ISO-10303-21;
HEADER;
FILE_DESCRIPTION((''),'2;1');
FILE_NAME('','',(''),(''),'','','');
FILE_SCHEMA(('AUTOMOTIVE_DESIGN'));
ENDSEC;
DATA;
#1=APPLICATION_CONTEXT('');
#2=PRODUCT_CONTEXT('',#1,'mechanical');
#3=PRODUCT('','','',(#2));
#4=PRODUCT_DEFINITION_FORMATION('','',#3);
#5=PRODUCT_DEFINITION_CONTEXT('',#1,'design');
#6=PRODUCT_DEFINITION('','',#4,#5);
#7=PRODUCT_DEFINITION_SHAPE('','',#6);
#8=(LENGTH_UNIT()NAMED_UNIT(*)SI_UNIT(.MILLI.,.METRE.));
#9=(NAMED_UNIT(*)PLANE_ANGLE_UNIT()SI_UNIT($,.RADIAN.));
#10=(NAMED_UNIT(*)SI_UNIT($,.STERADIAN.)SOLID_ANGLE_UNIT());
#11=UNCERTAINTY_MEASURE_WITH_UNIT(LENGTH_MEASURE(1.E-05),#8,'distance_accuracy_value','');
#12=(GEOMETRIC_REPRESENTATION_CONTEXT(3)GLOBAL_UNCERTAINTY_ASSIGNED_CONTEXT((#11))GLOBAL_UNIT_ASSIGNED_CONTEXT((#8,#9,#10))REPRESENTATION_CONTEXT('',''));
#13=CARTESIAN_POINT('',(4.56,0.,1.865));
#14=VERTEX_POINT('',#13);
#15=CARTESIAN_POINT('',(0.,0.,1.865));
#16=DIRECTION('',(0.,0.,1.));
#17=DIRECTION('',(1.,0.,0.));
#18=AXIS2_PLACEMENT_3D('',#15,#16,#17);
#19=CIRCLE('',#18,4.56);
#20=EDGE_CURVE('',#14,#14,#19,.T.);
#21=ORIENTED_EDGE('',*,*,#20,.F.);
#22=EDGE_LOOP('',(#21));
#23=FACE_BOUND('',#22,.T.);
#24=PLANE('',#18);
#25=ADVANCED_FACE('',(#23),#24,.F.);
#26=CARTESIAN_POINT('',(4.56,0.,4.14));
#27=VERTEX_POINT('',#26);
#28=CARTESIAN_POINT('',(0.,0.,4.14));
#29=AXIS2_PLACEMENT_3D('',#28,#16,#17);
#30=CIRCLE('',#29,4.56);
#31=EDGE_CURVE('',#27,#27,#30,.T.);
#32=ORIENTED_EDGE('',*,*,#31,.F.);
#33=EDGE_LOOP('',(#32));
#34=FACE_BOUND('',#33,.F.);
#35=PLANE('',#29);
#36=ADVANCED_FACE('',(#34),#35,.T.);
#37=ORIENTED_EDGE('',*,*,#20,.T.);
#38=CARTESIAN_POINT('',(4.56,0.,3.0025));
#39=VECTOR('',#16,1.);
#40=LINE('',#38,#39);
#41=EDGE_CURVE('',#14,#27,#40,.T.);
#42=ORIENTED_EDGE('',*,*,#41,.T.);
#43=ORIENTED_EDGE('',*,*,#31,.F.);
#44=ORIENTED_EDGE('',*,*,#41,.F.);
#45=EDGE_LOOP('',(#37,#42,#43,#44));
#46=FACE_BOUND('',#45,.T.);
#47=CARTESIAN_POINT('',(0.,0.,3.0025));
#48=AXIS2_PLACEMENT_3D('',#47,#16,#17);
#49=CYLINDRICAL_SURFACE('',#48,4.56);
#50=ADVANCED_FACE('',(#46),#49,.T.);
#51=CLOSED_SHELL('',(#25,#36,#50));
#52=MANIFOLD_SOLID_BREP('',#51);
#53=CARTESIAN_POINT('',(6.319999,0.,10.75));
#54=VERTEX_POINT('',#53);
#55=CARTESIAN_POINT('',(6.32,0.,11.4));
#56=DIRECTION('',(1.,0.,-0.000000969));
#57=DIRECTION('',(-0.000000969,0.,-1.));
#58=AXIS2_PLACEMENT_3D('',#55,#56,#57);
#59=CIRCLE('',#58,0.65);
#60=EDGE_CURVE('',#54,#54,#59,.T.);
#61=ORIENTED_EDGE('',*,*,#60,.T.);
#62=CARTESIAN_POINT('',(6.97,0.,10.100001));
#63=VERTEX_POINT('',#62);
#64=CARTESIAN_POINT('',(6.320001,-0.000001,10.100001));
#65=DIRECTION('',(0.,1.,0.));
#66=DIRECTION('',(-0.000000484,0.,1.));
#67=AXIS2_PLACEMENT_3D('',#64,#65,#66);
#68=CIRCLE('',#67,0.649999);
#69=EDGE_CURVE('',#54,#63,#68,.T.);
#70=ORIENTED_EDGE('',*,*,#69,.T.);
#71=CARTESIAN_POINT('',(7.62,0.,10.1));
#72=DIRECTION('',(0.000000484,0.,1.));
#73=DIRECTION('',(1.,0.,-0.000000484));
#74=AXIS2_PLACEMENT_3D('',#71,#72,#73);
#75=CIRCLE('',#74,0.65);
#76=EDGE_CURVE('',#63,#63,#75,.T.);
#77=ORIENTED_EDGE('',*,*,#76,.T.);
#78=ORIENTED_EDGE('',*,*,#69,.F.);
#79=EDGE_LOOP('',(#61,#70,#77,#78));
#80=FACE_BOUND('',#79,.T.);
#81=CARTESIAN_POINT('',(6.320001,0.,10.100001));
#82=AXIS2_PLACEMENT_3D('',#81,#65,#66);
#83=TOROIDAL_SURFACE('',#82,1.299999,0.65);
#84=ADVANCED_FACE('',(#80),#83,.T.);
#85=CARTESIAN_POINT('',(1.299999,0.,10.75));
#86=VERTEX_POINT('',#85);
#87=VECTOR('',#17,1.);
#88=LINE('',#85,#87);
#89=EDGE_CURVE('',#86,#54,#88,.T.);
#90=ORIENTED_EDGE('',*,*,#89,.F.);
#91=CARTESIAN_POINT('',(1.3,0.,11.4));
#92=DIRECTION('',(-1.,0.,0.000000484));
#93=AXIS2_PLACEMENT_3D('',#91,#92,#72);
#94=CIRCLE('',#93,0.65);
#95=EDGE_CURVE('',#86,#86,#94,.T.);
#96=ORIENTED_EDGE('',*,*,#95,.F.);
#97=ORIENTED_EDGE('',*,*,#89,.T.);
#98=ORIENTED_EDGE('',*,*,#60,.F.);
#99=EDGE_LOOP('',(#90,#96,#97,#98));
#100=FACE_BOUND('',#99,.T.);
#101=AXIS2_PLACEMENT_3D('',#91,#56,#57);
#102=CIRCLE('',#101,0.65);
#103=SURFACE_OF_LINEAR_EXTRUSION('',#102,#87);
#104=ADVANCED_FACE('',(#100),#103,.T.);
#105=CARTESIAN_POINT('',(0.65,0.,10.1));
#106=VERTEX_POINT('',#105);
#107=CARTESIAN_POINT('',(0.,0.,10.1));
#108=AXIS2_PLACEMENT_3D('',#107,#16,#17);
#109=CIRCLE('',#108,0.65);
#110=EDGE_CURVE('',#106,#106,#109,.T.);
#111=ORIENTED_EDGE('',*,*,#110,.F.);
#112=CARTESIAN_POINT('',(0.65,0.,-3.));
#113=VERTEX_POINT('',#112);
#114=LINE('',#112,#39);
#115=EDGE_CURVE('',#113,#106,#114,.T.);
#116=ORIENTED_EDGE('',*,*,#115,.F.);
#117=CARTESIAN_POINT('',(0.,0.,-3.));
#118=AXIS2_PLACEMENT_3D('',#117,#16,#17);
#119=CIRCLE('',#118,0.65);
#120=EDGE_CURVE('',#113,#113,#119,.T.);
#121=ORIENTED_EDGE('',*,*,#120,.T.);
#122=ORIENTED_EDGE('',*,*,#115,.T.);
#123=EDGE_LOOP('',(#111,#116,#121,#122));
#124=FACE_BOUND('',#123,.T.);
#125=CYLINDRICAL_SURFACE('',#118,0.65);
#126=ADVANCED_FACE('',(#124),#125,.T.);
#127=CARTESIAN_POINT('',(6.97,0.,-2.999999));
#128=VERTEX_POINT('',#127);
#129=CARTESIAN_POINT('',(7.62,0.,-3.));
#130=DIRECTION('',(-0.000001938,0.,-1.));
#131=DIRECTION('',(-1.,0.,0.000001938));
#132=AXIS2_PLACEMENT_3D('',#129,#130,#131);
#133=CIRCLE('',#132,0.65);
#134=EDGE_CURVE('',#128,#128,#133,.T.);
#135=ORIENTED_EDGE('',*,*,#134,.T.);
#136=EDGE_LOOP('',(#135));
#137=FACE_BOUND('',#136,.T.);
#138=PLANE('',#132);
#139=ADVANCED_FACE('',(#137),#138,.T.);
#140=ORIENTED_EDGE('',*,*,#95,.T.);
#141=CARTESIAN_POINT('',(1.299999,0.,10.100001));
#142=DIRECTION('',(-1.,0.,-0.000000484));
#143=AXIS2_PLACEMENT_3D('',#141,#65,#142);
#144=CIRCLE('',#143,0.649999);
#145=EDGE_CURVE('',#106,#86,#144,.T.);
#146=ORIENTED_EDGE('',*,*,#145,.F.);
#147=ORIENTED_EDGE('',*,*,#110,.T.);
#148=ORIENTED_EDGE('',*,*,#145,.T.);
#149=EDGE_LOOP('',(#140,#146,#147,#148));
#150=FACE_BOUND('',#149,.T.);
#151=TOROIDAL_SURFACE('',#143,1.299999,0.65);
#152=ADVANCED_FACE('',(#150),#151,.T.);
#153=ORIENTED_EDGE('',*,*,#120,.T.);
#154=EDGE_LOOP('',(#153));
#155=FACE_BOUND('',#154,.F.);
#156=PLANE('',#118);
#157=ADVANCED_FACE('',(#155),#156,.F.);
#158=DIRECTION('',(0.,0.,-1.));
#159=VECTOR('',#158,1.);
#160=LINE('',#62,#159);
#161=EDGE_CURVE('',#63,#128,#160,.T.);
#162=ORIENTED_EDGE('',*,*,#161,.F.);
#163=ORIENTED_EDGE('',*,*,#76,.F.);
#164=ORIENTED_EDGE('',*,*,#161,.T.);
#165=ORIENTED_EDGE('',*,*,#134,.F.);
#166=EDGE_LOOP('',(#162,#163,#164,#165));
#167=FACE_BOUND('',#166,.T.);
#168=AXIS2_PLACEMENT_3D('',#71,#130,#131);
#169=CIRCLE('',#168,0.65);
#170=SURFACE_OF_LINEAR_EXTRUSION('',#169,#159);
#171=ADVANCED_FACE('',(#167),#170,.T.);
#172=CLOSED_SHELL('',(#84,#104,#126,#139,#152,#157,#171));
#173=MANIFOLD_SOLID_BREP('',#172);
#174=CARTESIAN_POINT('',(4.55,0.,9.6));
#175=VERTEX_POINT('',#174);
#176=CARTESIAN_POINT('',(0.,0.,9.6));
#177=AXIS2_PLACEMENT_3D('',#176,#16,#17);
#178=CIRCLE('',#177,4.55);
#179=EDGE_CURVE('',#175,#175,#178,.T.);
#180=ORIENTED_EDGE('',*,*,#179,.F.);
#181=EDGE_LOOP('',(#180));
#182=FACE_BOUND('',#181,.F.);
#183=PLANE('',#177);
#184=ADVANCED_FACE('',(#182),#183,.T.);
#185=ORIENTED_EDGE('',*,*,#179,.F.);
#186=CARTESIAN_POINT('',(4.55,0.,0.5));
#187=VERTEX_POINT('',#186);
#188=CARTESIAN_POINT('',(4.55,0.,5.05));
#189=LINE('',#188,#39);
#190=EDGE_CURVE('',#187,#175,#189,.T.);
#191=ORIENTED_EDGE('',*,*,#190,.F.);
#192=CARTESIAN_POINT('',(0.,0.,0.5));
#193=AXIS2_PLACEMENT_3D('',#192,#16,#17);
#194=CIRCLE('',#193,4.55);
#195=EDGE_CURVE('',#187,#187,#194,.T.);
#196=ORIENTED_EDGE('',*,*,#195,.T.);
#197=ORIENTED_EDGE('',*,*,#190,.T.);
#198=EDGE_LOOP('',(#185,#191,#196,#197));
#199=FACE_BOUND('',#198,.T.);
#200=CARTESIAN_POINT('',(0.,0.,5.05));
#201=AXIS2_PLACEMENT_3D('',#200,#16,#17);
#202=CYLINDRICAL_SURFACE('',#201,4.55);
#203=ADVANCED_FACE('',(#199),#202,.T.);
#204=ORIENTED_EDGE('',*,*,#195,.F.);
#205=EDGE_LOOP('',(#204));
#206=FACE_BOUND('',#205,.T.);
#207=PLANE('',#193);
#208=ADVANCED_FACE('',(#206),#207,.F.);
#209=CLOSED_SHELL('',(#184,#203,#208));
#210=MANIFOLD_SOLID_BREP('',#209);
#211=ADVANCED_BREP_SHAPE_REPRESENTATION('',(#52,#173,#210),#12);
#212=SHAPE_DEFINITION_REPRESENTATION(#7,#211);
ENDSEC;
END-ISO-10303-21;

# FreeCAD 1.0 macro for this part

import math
import FreeCAD as App
import Part
import Sketcher
from FreeCAD import Vector


def add_polygon(sketch, points):
    """Adds a closed chain of lines whose ends are joined by coincident constraints."""
    first, n = sketch.GeometryCount, len(points)
    for a, b in zip(points, points[1:] + points[:1]):
        sketch.addGeometry(Part.LineSegment(App.Vector(*a, 0), App.Vector(*b, 0)), False)
    for i in range(n):
        sketch.addConstraint(Sketcher.Constraint("Coincident", first + i, 2, first + (i + 1) % n, 1))

doc = App.newDocument("Part")
params = doc.addObject("Spreadsheet::Sheet", "Params")
for row, (alias, value) in enumerate([
    ("sketch1_diameter", "1.3 mm"),
    ("sketch2_radius", "1.299999 mm"),
    ("sketch2_height", "13.1 mm"),
    ("sketch2_width", "5.02 mm"),
    ("sketch3_height", "9.1 mm"),
    ("sketch3_width", "4.55 mm"),
    ("revolution_angle", "360 deg"),
    ("sketch4_width", "4.56 mm"),
    ("revolution2_angle", "360 deg"),
], start=1):
    params.set(f"A{row}", alias)
    params.set(f"B{row}", "=" + value)
    params.setAlias(f"B{row}", alias)

body = doc.addObject("PartDesign::Body", "Body")

sketch1 = body.newObject("Sketcher::SketchObject", "Sketch")
sketch1.AttachmentSupport = (doc.getObject("XY_Plane"), [""])
sketch1.MapMode = "FlatFace"
sketch1.addGeometry(Part.Circle(Vector(0, 0, 0), Vector(0, 0, 1), 0.7), False)
sketch1.addConstraint([
    Sketcher.Constraint("Coincident", 0, 3, -1, 1),
    Sketcher.Constraint("Diameter", 0, 1.3),
])
sketch1.setExpression("Constraints[1]", "Params.sketch1_diameter")

sketch2 = body.newObject("Sketcher::SketchObject", "Sketch001")
sketch2.AttachmentSupport = (doc.getObject("XZ_Plane"), [""])
sketch2.MapMode = "FlatFace"
sketch2.addGeometry([
    Part.LineSegment(Vector(0, -3, 0), Vector(0, 10.1, 0)),
    Part.ArcOfCircle(Part.Circle(Vector(1.3, 10.1, 0), Vector(0, 0, 1), 1.3), math.radians(90), math.radians(180)),
    Part.LineSegment(Vector(1.3, 11.4, 0), Vector(6.3, 11.4, 0)),
    Part.ArcOfCircle(Part.Circle(Vector(6.3, 10.1, 0), Vector(0, 0, 1), 1.3), math.radians(0), math.radians(90)),
    Part.LineSegment(Vector(7.6, 10.1, 0), Vector(7.6, -3, 0)),
], False)
sketch2.addConstraint([
    Sketcher.Constraint("Tangent", 0, 2, 1, 2),
    Sketcher.Constraint("Tangent", 1, 1, 2, 1),
    Sketcher.Constraint("Tangent", 2, 2, 3, 2),
    Sketcher.Constraint("Tangent", 3, 1, 4, 1),
    Sketcher.Constraint("Vertical", 0),
    Sketcher.Constraint("Horizontal", 2),
    Sketcher.Constraint("Vertical", 4),
    Sketcher.Constraint("Equal", 1, 3),
    Sketcher.Constraint("PointOnObject", 0, 1, -2),
    Sketcher.Constraint("Horizontal", 0, 1, 4, 2),
    Sketcher.Constraint("Radius", 1, 1.299999),
    Sketcher.Constraint("DistanceY", 0, 1, 0, 2, 13.1),
    Sketcher.Constraint("DistanceY", 0, 1, -1, 1, 3.0),
    Sketcher.Constraint("DistanceX", 2, 1, 2, 2, 5.02),
])
sketch2.setExpression("Constraints[10]", "Params.sketch2_radius")
sketch2.setExpression("Constraints[11]", "Params.sketch2_height")
sketch2.setExpression("Constraints[13]", "Params.sketch2_width")
doc.recompute()

additivepipe = body.newObject("PartDesign::AdditivePipe", "AdditivePipe")
additivepipe.Profile = sketch1
additivepipe.Spine = (sketch2, ["Edge1", "Edge2", "Edge3", "Edge4", "Edge5"])
body2 = doc.addObject("PartDesign::Body", "Body001")

sketch3 = body2.newObject("Sketcher::SketchObject", "Sketch002")
sketch3.AttachmentSupport = (doc.getObject("XZ_Plane001"), [""])
sketch3.MapMode = "FlatFace"
add_polygon(sketch3, [(0, 9.6), (0, 0.5), (4.5, 0.5), (4.5, 9.6)])
sketch3.addConstraint([
    Sketcher.Constraint("Vertical", 0),
    Sketcher.Constraint("Horizontal", 1),
    Sketcher.Constraint("Vertical", 2),
    Sketcher.Constraint("Horizontal", 3),
    Sketcher.Constraint("PointOnObject", 0, 2, -2),
    Sketcher.Constraint("DistanceY", 0, 2, 0, 1, 9.1),
    Sketcher.Constraint("DistanceX", 1, 1, 1, 2, 4.55),
    Sketcher.Constraint("DistanceY", -1, 1, 0, 2, 0.5),
])
sketch3.setExpression("Constraints[9]", "Params.sketch3_height")
sketch3.setExpression("Constraints[10]", "Params.sketch3_width")
revolution = body2.newObject("PartDesign::Revolution", "Revolution")
revolution.Profile = sketch3
revolution.ReferenceAxis = (sketch3, ["V_Axis"])
revolution.setExpression("Angle", "Params.revolution_angle")
body3 = doc.addObject("PartDesign::Body", "Body002")

sketch4 = body3.newObject("Sketcher::SketchObject", "Sketch003")
sketch4.AttachmentSupport = (doc.getObject("XZ_Plane002"), [""])
sketch4.MapMode = "FlatFace"
add_polygon(sketch4, [(0, 4.1), (0, 1.9), (4.6, 1.9), (4.6, 4.1)])
sketch4.addConstraint([
    Sketcher.Constraint("Vertical", 0),
    Sketcher.Constraint("Horizontal", 1),
    Sketcher.Constraint("Vertical", 2),
    Sketcher.Constraint("Horizontal", 3),
    Sketcher.Constraint("PointOnObject", 0, 2, -2),
    Sketcher.Constraint("DistanceX", 1, 1, 1, 2, 4.56),
    Sketcher.Constraint("DistanceY", 0, 2, 0, 1, 2.275),
    Sketcher.Constraint("DistanceY", -1, 1, 2, 2, 4.14),
])
sketch4.setExpression("Constraints[9]", "Params.sketch4_width")
revolution2 = body3.newObject("PartDesign::Revolution", "Revolution001")
revolution2.Profile = sketch4
revolution2.ReferenceAxis = (sketch4, ["V_Axis"])
revolution2.setExpression("Angle", "Params.revolution2_angle")

doc.recompute()
